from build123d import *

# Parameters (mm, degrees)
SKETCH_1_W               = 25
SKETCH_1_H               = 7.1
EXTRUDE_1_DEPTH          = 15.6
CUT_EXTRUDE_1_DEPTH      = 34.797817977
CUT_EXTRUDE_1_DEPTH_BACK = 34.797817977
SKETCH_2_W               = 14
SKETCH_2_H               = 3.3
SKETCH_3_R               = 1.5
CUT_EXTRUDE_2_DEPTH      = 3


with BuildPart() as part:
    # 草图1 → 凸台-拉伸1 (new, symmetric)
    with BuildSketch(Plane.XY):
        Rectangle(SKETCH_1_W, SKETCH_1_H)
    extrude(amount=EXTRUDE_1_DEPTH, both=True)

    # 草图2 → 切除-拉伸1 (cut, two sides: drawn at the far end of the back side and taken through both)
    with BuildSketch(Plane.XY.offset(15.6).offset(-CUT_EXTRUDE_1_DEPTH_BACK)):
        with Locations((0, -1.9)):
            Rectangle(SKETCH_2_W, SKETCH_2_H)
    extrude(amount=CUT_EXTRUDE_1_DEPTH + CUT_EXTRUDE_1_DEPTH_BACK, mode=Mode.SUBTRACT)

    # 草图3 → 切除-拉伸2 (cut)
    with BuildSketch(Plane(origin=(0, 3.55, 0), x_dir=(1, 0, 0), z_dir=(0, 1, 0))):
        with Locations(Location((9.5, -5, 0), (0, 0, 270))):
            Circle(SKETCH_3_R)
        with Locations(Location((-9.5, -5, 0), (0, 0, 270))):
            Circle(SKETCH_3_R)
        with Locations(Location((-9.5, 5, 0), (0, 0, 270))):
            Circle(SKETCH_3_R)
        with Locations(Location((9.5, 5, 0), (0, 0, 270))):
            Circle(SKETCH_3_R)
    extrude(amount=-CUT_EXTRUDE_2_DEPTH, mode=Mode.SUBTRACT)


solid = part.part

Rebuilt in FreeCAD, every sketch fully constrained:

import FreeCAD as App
import Part
import Sketcher
from FreeCAD import Vector
Q = App.Units.Quantity

doc = App.newDocument("Part")
body = doc.addObject("PartDesign::Body", "Body")

# Sketch on XY plane
sketch1 = body.newObject("Sketcher::SketchObject", "Sketch")
sketch1.AttachmentSupport = (doc.getObject("XY_Plane"), [""])
sketch1.MapMode = "FlatFace"
sketch1.addGeometry(Part.LineSegment(Vector(-12.5, 3.55, 0), Vector(-12.5, -3.55, 0)), False)
sketch1.addGeometry(Part.LineSegment(Vector(-12.5, -3.55, 0), Vector(12.5, -3.55, 0)), False)
sketch1.addGeometry(Part.LineSegment(Vector(12.5, -3.55, 0), Vector(12.5, 3.55, 0)), False)
sketch1.addGeometry(Part.LineSegment(Vector(12.5, 3.55, 0), Vector(-12.5, 3.55, 0)), False)
sketch1.addConstraint(Sketcher.Constraint("Coincident", 0, 2, 1, 1))
sketch1.addConstraint(Sketcher.Constraint("Coincident", 1, 2, 2, 1))
sketch1.addConstraint(Sketcher.Constraint("Coincident", 2, 2, 3, 1))
sketch1.addConstraint(Sketcher.Constraint("Coincident", 3, 2, 0, 1))
sketch1.addConstraint(Sketcher.Constraint("Vertical", 0))
sketch1.addConstraint(Sketcher.Constraint("Horizontal", 1))
sketch1.addConstraint(Sketcher.Constraint("Vertical", 2))
sketch1.addConstraint(Sketcher.Constraint("Horizontal", 3))
sketch1.addConstraint(Sketcher.Constraint("Symmetric", 0, 2, 2, 2, -1, 1))
sketch1.addConstraint(Sketcher.Constraint("DistanceX", 1, 1, 1, 2, Q("25 mm")))
sketch1.addConstraint(Sketcher.Constraint("DistanceY", 0, 2, 0, 1, Q("7.1 mm")))
pad1 = body.newObject("PartDesign::Pad", "Pad")
pad1.Profile = sketch1
pad1.Length = 31.2
pad1.Midplane = True

# Sketch on XY plane
sketch2 = body.newObject("Sketcher::SketchObject", "Sketch001")
sketch2.AttachmentSupport = (doc.getObject("XY_Plane"), [""])
sketch2.MapMode = "FlatFace"
sketch2.AttachmentOffset = App.Placement(Vector(0, 0, 15.6), App.Rotation())
sketch2.addGeometry(Part.LineSegment(Vector(-7, -0.25, 0), Vector(-7, -3.55, 0)), False)
sketch2.addGeometry(Part.LineSegment(Vector(-7, -3.55, 0), Vector(7, -3.55, 0)), False)
sketch2.addGeometry(Part.LineSegment(Vector(7, -3.55, 0), Vector(7, -0.25, 0)), False)
sketch2.addGeometry(Part.LineSegment(Vector(7, -0.25, 0), Vector(-7, -0.25, 0)), False)
sketch2.addConstraint(Sketcher.Constraint("Coincident", 0, 2, 1, 1))
sketch2.addConstraint(Sketcher.Constraint("Coincident", 1, 2, 2, 1))
sketch2.addConstraint(Sketcher.Constraint("Coincident", 2, 2, 3, 1))
sketch2.addConstraint(Sketcher.Constraint("Coincident", 3, 2, 0, 1))
sketch2.addConstraint(Sketcher.Constraint("Vertical", 0))
sketch2.addConstraint(Sketcher.Constraint("Horizontal", 1))
sketch2.addConstraint(Sketcher.Constraint("Vertical", 2))
sketch2.addConstraint(Sketcher.Constraint("Horizontal", 3))
sketch2.addConstraint(Sketcher.Constraint("DistanceX", 1, 1, 1, 2, Q("14 mm")))
sketch2.addConstraint(Sketcher.Constraint("DistanceY", 0, 2, 0, 1, Q("3.3 mm")))
sketch2.addConstraint(Sketcher.Constraint("DistanceX", 0, 2, -1, 1, Q("7 mm")))
sketch2.addConstraint(Sketcher.Constraint("DistanceY", 0, 2, -1, 1, Q("3.55 mm")))
pocket1 = body.newObject("PartDesign::Pocket", "Pocket")
pocket1.Profile = sketch2
pocket1.Type = "ThroughAll"
pocket1.Midplane = True

# Sketch on XZ plane
sketch3 = body.newObject("Sketcher::SketchObject", "Sketch002")
sketch3.AttachmentSupport = (doc.getObject("XZ_Plane"), [""])
sketch3.MapMode = "FlatFace"
sketch3.AttachmentOffset = App.Placement(Vector(0, 0, -3.55), App.Rotation())
sketch3.addGeometry(Part.Circle(Vector(9.5, 5, 0), Vector(0, 0, 1), 1.5), False)
sketch3.addGeometry(Part.Circle(Vector(-9.5, 5, 0), Vector(0, 0, 1), 1.5), False)
sketch3.addGeometry(Part.Circle(Vector(-9.5, -5, 0), Vector(0, 0, 1), 1.5), False)
sketch3.addGeometry(Part.Circle(Vector(9.5, -5, 0), Vector(0, 0, 1), 1.5), False)
sketch3.addConstraint(Sketcher.Constraint("Equal", 0, 1))
sketch3.addConstraint(Sketcher.Constraint("Equal", 1, 2))
sketch3.addConstraint(Sketcher.Constraint("Equal", 2, 3))
sketch3.addConstraint(Sketcher.Constraint("Symmetric", 0, 3, 2, 3, -1, 1))
sketch3.addConstraint(Sketcher.Constraint("Symmetric", 1, 3, 3, 3, -1, 1))
sketch3.addConstraint(Sketcher.Constraint("Symmetric", 0, 3, 1, 3, -2))
sketch3.addConstraint(Sketcher.Constraint("Diameter", 0, Q("3 mm")))
sketch3.addConstraint(Sketcher.Constraint("DistanceY", -1, 1, 0, 3, Q("5 mm")))
sketch3.addConstraint(Sketcher.Constraint("DistanceX", 1, 3, 0, 3, Q("19 mm")))
pocket2 = body.newObject("PartDesign::Pocket", "Pocket001")
pocket2.Profile = sketch3
pocket2.Length = 3
pocket2.Reversed = True

doc.recompute()
